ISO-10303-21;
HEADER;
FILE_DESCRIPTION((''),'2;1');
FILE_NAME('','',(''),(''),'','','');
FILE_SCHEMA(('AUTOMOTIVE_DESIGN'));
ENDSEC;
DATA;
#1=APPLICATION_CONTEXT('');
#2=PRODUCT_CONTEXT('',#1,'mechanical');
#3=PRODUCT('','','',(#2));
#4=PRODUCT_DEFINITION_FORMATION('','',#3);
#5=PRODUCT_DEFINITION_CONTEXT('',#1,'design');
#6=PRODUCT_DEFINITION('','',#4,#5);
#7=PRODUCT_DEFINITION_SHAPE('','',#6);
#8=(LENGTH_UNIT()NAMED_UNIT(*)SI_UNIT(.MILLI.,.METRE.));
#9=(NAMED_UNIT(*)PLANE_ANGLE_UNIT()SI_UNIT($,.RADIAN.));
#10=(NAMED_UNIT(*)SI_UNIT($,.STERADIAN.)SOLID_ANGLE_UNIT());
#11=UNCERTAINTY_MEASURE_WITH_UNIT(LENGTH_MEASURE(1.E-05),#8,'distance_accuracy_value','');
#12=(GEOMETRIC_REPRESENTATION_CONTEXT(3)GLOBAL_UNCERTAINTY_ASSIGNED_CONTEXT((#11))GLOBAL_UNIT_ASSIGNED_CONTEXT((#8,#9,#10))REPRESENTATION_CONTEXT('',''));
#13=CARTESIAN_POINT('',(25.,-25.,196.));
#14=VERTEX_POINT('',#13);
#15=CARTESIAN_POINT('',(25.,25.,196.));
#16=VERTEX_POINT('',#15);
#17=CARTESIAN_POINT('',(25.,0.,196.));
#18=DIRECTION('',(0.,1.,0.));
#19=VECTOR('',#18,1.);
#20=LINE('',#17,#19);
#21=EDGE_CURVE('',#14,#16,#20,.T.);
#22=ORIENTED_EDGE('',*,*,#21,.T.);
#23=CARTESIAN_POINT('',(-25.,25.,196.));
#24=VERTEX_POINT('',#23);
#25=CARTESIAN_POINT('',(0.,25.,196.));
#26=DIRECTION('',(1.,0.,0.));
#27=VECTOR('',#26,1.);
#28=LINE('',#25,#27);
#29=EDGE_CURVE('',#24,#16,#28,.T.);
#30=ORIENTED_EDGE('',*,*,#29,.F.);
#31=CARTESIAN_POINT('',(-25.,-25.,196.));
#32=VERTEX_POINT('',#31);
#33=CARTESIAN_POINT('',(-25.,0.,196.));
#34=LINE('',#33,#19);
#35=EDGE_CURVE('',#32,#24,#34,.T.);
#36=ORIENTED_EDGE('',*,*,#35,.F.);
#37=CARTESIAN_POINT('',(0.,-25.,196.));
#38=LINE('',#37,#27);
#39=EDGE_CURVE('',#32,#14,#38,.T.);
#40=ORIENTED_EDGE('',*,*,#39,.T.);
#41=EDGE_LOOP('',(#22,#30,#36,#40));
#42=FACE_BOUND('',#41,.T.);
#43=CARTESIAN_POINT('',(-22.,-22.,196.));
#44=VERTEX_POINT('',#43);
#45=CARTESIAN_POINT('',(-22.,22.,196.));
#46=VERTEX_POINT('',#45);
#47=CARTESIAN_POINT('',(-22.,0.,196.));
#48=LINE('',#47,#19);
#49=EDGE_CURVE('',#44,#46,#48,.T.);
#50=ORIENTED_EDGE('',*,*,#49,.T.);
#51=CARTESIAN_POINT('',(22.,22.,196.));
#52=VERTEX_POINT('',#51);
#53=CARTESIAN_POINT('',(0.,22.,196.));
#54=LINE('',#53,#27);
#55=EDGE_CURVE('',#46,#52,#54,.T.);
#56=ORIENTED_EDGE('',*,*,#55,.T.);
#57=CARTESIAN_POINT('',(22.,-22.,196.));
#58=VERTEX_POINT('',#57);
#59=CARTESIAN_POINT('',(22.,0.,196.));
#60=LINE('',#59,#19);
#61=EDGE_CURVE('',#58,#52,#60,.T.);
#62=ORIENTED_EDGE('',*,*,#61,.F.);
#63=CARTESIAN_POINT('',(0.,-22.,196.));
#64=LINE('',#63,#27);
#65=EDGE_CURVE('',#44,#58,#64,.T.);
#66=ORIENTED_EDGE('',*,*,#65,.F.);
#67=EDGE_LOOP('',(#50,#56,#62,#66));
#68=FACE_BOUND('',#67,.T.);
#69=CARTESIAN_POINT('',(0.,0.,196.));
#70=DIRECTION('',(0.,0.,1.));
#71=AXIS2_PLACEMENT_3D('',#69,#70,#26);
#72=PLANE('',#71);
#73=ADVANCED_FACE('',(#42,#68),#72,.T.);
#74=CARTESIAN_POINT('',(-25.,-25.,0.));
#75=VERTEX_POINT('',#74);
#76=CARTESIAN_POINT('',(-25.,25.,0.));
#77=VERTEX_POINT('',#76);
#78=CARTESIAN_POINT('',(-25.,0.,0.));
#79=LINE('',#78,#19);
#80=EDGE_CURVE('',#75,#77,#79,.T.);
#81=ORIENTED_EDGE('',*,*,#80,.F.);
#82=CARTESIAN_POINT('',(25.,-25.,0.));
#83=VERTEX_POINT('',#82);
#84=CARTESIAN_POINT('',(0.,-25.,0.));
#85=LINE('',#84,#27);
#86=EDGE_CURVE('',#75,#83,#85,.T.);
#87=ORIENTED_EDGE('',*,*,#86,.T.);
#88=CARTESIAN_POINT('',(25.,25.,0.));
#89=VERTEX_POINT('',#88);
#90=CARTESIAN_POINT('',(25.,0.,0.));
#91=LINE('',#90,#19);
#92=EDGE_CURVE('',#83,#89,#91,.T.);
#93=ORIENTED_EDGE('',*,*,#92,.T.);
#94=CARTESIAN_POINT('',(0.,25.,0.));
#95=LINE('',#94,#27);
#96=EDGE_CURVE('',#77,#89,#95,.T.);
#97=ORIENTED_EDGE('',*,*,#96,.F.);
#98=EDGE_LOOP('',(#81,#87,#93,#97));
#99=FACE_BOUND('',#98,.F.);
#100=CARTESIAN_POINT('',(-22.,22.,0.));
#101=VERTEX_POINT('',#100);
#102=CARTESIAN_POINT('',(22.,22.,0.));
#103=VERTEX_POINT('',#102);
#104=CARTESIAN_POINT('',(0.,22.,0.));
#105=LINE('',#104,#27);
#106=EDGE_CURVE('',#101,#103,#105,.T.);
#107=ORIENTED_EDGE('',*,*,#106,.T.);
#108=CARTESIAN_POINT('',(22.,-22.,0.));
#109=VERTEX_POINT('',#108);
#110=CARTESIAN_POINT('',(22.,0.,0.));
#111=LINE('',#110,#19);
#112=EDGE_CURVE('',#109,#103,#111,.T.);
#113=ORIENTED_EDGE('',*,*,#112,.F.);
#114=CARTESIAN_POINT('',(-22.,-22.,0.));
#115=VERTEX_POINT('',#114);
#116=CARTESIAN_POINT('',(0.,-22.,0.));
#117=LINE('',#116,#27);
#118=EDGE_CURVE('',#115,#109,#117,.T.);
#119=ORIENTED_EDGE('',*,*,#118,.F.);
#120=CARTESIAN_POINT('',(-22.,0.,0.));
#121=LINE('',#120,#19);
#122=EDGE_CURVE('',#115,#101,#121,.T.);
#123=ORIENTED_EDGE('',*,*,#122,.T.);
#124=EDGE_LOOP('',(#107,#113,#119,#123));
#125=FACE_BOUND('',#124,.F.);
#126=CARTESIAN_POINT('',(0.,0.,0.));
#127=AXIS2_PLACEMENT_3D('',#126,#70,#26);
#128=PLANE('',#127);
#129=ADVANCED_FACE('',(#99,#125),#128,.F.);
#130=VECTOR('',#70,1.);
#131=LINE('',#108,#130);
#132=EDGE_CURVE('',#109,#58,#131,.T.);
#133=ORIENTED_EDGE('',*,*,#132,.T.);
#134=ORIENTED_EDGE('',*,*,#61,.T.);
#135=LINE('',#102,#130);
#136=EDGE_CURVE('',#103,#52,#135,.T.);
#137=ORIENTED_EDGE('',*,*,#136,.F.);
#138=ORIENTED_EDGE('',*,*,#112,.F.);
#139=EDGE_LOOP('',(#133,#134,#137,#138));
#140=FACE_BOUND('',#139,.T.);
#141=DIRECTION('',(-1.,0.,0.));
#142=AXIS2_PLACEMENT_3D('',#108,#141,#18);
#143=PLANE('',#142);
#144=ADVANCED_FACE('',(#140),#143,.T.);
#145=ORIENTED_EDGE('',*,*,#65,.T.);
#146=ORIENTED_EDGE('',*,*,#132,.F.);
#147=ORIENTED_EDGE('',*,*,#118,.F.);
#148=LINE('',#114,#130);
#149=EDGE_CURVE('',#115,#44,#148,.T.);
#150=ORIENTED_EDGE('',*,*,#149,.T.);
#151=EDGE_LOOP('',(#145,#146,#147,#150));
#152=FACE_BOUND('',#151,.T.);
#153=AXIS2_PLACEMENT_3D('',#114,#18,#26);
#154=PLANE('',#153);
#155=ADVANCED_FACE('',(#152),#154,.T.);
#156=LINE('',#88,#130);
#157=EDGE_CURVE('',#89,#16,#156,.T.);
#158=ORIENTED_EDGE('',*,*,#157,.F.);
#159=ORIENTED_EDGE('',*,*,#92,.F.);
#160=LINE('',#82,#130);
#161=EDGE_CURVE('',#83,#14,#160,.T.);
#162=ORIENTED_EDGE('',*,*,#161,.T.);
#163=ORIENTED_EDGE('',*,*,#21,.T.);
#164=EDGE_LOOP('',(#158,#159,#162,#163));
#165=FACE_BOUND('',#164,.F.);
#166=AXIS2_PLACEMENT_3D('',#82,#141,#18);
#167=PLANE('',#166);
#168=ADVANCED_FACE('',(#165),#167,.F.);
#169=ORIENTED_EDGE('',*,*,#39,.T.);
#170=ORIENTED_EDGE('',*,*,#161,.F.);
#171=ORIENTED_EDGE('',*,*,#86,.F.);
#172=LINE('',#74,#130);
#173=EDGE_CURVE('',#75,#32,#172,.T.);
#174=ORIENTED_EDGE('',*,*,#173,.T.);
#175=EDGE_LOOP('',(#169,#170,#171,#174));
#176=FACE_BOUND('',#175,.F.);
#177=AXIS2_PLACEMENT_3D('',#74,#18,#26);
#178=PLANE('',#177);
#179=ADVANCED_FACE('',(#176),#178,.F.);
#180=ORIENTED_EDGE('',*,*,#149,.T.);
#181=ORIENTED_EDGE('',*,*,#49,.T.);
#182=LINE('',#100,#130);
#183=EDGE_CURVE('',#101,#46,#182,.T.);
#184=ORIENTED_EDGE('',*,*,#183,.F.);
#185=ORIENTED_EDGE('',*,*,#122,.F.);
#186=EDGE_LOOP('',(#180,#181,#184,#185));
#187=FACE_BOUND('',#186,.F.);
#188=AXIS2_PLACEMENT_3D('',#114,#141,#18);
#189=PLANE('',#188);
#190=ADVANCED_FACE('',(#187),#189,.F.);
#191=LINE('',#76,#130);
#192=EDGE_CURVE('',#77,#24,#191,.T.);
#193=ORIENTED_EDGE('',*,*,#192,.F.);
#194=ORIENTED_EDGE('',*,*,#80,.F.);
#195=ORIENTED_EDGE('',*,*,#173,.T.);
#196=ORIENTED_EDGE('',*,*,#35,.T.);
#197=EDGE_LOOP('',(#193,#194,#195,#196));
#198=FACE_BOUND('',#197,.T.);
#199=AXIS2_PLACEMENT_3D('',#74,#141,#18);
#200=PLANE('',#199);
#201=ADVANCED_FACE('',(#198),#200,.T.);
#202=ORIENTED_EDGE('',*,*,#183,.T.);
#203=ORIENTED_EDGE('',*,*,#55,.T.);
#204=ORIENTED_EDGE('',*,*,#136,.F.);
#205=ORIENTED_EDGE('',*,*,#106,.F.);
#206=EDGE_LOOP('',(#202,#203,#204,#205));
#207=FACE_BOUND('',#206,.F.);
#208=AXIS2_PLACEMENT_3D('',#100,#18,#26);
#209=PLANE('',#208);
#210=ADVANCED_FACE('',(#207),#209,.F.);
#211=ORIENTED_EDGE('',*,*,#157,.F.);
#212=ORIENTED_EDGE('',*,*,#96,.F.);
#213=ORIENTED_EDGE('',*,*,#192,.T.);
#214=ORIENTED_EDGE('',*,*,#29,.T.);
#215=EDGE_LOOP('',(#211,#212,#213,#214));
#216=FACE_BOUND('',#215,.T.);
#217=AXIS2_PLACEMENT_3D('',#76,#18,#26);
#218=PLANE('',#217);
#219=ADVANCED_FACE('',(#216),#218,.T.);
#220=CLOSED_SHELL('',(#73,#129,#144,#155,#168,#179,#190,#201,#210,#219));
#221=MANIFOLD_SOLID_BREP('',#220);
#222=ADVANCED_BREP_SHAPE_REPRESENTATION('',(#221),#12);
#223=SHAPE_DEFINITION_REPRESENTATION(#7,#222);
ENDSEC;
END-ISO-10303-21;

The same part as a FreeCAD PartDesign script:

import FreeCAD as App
import Part
import Sketcher
from FreeCAD import Vector
Q = App.Units.Quantity

doc = App.newDocument("Part")
body = doc.addObject("PartDesign::Body", "Body")

# Sketch on XY plane
sketch1 = doc.addObject("Sketcher::SketchObject", "Sketch")
body.addObject(sketch1)
sketch1.AttachmentSupport = (doc.XY_Plane, [""])
sketch1.MapMode = "FlatFace"
sketch1.addGeometry([
    Part.LineSegment(Vector(-25, 25, 0), Vector(-25, -25, 0)),  # 0
    Part.LineSegment(Vector(-25, -25, 0), Vector(25, -25, 0)),  # 1
    Part.LineSegment(Vector(25, -25, 0), Vector(25, 25, 0)),  # 2
    Part.LineSegment(Vector(25, 25, 0), Vector(-25, 25, 0)),  # 3
    Part.LineSegment(Vector(22, -22, 0), Vector(-22, -22, 0)),  # 4
    Part.LineSegment(Vector(-22, -22, 0), Vector(-22, 22, 0)),  # 5
    Part.LineSegment(Vector(-22, 22, 0), Vector(22, 22, 0)),  # 6
    Part.LineSegment(Vector(22, 22, 0), Vector(22, -22, 0)),  # 7
], False)
sketch1.addConstraint([
    Sketcher.Constraint("Coincident", 0, 2, 1, 1),
    Sketcher.Constraint("Coincident", 1, 2, 2, 1),
    Sketcher.Constraint("Coincident", 2, 2, 3, 1),
    Sketcher.Constraint("Coincident", 3, 2, 0, 1),
    Sketcher.Constraint("Coincident", 4, 2, 5, 1),
    Sketcher.Constraint("Coincident", 5, 2, 6, 1),
    Sketcher.Constraint("Coincident", 6, 2, 7, 1),
    Sketcher.Constraint("Coincident", 7, 2, 4, 1),
    Sketcher.Constraint("Vertical", 0),
    Sketcher.Constraint("Horizontal", 1),
    Sketcher.Constraint("Vertical", 2),
    Sketcher.Constraint("Horizontal", 3),
    Sketcher.Constraint("Horizontal", 4),
    Sketcher.Constraint("Vertical", 5),
    Sketcher.Constraint("Horizontal", 6),
    Sketcher.Constraint("Vertical", 7),
    Sketcher.Constraint("Symmetric", 0, 2, 2, 2, -1, 1),
    Sketcher.Constraint("Symmetric", 4, 2, 6, 2, -1, 1),
    Sketcher.Constraint("Equal", 3, 0),
    Sketcher.Constraint("Equal", 6, 5),
    Sketcher.Constraint("DistanceX", 1, 1, 1, 2, Q("50 mm")),
    Sketcher.Constraint("DistanceX", 4, 2, 4, 1, Q("44 mm")),
])
pad1 = doc.addObject("PartDesign::Pad", "Pad")
body.addObject(pad1)
pad1.Profile = sketch1
pad1.Length = 196

doc.recompute()
